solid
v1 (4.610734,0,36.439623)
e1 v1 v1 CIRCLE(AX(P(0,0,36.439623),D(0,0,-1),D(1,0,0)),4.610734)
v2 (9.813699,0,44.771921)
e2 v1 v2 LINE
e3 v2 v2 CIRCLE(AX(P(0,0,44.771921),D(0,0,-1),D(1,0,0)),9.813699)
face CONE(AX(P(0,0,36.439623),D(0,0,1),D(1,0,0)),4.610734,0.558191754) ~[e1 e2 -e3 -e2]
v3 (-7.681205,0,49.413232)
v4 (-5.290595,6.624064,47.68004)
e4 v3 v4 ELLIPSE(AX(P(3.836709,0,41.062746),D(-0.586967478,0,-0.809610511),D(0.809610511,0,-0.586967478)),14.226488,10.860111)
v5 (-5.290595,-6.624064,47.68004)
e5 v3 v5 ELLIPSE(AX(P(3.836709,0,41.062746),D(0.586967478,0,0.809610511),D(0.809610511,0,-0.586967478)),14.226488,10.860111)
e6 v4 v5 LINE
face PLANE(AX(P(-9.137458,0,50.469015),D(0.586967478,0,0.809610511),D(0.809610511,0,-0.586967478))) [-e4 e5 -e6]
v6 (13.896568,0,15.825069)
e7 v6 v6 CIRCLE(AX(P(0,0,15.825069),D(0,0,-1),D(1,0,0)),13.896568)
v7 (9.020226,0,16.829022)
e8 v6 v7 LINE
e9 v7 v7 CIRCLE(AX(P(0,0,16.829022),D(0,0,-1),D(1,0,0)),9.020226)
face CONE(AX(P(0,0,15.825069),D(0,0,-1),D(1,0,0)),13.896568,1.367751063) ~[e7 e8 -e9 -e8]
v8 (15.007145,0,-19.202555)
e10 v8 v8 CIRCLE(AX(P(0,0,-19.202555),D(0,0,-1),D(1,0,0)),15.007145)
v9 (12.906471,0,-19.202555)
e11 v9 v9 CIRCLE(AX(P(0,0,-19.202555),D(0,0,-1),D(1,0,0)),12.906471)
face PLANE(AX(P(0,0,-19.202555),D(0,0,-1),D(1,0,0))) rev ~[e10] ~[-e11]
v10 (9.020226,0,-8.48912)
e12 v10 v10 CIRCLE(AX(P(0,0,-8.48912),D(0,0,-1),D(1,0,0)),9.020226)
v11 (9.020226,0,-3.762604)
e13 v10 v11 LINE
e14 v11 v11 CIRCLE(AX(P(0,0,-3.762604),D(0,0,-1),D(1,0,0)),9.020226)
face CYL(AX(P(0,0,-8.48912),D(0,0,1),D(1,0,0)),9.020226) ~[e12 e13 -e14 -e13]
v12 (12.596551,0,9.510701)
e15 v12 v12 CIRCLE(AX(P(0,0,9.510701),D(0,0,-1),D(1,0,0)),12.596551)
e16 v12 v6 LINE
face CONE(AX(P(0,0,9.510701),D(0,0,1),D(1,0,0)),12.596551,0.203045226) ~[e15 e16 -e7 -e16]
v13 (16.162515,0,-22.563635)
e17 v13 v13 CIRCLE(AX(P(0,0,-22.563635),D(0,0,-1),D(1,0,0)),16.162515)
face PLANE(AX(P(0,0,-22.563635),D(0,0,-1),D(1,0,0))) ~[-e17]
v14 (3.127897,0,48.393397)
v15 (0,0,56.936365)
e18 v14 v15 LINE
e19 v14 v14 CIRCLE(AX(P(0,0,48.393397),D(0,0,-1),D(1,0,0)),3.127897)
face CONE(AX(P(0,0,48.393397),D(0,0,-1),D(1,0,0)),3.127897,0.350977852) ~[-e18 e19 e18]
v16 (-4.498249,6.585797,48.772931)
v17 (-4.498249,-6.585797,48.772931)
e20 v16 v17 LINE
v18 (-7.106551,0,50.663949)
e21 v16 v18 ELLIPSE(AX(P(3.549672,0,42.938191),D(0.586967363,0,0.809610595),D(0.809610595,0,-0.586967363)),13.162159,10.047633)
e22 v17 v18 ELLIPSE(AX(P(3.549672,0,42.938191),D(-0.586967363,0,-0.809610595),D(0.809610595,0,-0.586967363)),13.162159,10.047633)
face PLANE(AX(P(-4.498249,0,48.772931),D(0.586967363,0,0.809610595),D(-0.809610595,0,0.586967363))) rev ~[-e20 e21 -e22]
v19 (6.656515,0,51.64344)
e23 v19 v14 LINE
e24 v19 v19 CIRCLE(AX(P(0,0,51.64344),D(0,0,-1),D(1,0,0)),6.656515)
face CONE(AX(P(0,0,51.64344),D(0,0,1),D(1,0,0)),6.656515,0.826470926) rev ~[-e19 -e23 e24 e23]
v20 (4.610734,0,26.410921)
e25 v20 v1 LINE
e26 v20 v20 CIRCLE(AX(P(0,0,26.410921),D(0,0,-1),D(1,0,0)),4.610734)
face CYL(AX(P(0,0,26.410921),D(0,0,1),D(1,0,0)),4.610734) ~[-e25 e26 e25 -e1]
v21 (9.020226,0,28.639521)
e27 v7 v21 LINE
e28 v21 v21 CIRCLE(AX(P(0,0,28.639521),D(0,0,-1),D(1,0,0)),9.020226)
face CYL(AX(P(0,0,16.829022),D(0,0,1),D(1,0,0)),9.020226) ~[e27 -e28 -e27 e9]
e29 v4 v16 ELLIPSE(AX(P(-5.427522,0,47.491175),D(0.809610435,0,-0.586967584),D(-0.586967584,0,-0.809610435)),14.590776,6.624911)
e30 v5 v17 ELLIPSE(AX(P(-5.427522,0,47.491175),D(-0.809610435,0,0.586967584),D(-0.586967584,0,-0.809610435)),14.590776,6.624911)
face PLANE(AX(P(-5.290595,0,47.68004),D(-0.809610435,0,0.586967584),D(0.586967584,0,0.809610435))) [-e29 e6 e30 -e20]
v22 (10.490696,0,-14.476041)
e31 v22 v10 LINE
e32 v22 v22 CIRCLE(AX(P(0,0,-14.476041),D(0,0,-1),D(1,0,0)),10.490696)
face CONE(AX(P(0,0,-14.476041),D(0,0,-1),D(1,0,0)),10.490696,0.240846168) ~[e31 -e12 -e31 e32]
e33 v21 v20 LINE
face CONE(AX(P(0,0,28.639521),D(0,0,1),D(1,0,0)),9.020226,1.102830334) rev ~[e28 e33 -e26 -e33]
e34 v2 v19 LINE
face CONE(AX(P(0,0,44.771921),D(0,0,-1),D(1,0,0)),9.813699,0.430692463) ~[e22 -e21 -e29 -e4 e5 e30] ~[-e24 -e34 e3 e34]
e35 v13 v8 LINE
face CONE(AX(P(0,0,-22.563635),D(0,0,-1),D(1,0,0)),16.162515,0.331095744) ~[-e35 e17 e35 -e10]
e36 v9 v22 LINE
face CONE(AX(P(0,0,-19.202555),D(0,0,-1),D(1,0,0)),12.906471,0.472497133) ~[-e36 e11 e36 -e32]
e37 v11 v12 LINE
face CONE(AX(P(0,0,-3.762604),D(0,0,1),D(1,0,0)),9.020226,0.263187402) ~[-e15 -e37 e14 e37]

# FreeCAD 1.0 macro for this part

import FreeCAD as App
import Part
import Sketcher
from FreeCAD import Vector
Q = App.Units.Quantity

doc = App.newDocument("Part")
body = doc.addObject("PartDesign::Body", "Body")

sketch1 = body.newObject("Sketcher::SketchObject", "Sketch")
sketch1.AttachmentSupport = (doc.getObject("XZ_Plane"), [""])
sketch1.MapMode = "FlatFace"
sketch1.addGeometry(Part.LineSegment(Vector(0, -22.563635, 0), Vector(16.162515, -22.563635, 0)), False)
sketch1.addGeometry(Part.LineSegment(Vector(16.162515, -22.563635, 0), Vector(15.007145, -19.202555, 0)), False)
sketch1.addGeometry(Part.LineSegment(Vector(15.007145, -19.202555, 0), Vector(12.906471, -19.202555, 0)), False)
sketch1.addGeometry(Part.LineSegment(Vector(12.906471, -19.202555, 0), Vector(10.490696, -14.476041, 0)), False)
sketch1.addGeometry(Part.LineSegment(Vector(10.490696, -14.476041, 0), Vector(9.020226, -8.48912, 0)), False)
sketch1.addGeometry(Part.LineSegment(Vector(9.020226, -8.48912, 0), Vector(9.020226, -3.762604, 0)), False)
sketch1.addGeometry(Part.LineSegment(Vector(9.020226, -3.762604, 0), Vector(12.596551, 9.510701, 0)), False)
sketch1.addGeometry(Part.LineSegment(Vector(12.596551, 9.510701, 0), Vector(13.896568, 15.825069, 0)), False)
sketch1.addGeometry(Part.LineSegment(Vector(13.896568, 15.825069, 0), Vector(9.020226, 16.829022, 0)), False)
sketch1.addGeometry(Part.LineSegment(Vector(9.020226, 16.829022, 0), Vector(9.020226, 28.639521, 0)), False)
sketch1.addGeometry(Part.LineSegment(Vector(9.020226, 28.639521, 0), Vector(4.610734, 26.410921, 0)), False)
sketch1.addGeometry(Part.LineSegment(Vector(4.610734, 26.410921, 0), Vector(4.610734, 36.439623, 0)), False)
sketch1.addGeometry(Part.LineSegment(Vector(4.610734, 36.439623, 0), Vector(9.813699, 44.771921, 0)), False)
sketch1.addGeometry(Part.LineSegment(Vector(9.813699, 44.771921, 0), Vector(6.656515, 51.64344, 0)), False)
sketch1.addGeometry(Part.LineSegment(Vector(6.656515, 51.64344, 0), Vector(3.127897, 48.393397, 0)), False)
sketch1.addGeometry(Part.LineSegment(Vector(3.127897, 48.393397, 0), Vector(0, 56.936365, 0)), False)
sketch1.addGeometry(Part.LineSegment(Vector(0, 56.936365, 0), Vector(0, -22.563635, 0)), False)
sketch1.addConstraint(Sketcher.Constraint("Coincident", 0, 2, 1, 1))
sketch1.addConstraint(Sketcher.Constraint("Coincident", 1, 2, 2, 1))
sketch1.addConstraint(Sketcher.Constraint("Coincident", 2, 2, 3, 1))
sketch1.addConstraint(Sketcher.Constraint("Coincident", 3, 2, 4, 1))
sketch1.addConstraint(Sketcher.Constraint("Coincident", 4, 2, 5, 1))
sketch1.addConstraint(Sketcher.Constraint("Coincident", 5, 2, 6, 1))
sketch1.addConstraint(Sketcher.Constraint("Coincident", 6, 2, 7, 1))
sketch1.addConstraint(Sketcher.Constraint("Coincident", 7, 2, 8, 1))
sketch1.addConstraint(Sketcher.Constraint("Coincident", 8, 2, 9, 1))
sketch1.addConstraint(Sketcher.Constraint("Coincident", 9, 2, 10, 1))
sketch1.addConstraint(Sketcher.Constraint("Coincident", 10, 2, 11, 1))
sketch1.addConstraint(Sketcher.Constraint("Coincident", 11, 2, 12, 1))
sketch1.addConstraint(Sketcher.Constraint("Coincident", 12, 2, 13, 1))
sketch1.addConstraint(Sketcher.Constraint("Coincident", 13, 2, 14, 1))
sketch1.addConstraint(Sketcher.Constraint("Coincident", 14, 2, 15, 1))
sketch1.addConstraint(Sketcher.Constraint("Coincident", 15, 2, 16, 1))
sketch1.addConstraint(Sketcher.Constraint("Coincident", 16, 2, 0, 1))
sketch1.addConstraint(Sketcher.Constraint("Horizontal", 0))
sketch1.addConstraint(Sketcher.Constraint("Horizontal", 2))
sketch1.addConstraint(Sketcher.Constraint("Vertical", 5))
sketch1.addConstraint(Sketcher.Constraint("Vertical", 9))
sketch1.addConstraint(Sketcher.Constraint("Vertical", 11))
sketch1.addConstraint(Sketcher.Constraint("Vertical", 16))
sketch1.addConstraint(Sketcher.Constraint("PointOnObject", 15, 2, -2))
sketch1.addConstraint(Sketcher.Constraint("Perpendicular", 7, 8))
sketch1.addConstraint(Sketcher.Constraint("Vertical", 5, 2, 8, 2))
sketch1.addConstraint(Sketcher.Constraint("DistanceY", 16, 2, 16, 1, Q("79.5 mm")))
sketch1.addConstraint(Sketcher.Constraint("DistanceY", 9, 1, 9, 2, Q("11.810499 mm")))
sketch1.addConstraint(Sketcher.Constraint("DistanceY", 11, 1, 11, 2, Q("10.028702 mm")))
sketch1.addConstraint(Sketcher.Constraint("DistanceY", 10, 2, 12, 2, Q("18.361 mm")))
sketch1.addConstraint(Sketcher.Constraint("DistanceY", -1, 1, 6, 2, Q("9.510701 mm")))
sketch1.addConstraint(Sketcher.Constraint("DistanceX", -1, 1, 12, 2, Q("9.813699 mm")))
sketch1.addConstraint(Sketcher.Constraint("DistanceY", 10, 2, 9, 2, Q("2.2286 mm")))
sketch1.addConstraint(Sketcher.Constraint("DistanceX", 14, 2, 12, 2, Q("6.685802 mm")))
sketch1.addConstraint(Sketcher.Constraint("Distance", 4, Q("6.164861 mm")))
sketch1.addConstraint(Sketcher.Constraint("Distance", 12, Q("9.823341 mm")))
sketch1.addConstraint(Sketcher.Constraint("DistanceX", 0, 1, 0, 2, Q("16.162515 mm")))
sketch1.addConstraint(Sketcher.Constraint("DistanceX", 2, 2, 2, 1, Q("2.100674 mm")))
sketch1.addConstraint(Sketcher.Constraint("DistanceY", 5, 1, 5, 2, Q("4.726516 mm")))
sketch1.addConstraint(Sketcher.Constraint("DistanceX", -1, 1, 2, 2, Q("12.906471 mm")))
sketch1.addConstraint(Sketcher.Constraint("DistanceY", 3, 2, -1, 1, Q("14.476041 mm")))
sketch1.addConstraint(Sketcher.Constraint("DistanceY", 4, 2, -1, 1, Q("8.48912 mm")))
sketch1.addConstraint(Sketcher.Constraint("DistanceX", -1, 1, 6, 2, Q("12.596551 mm")))
sketch1.addConstraint(Sketcher.Constraint("DistanceY", -1, 1, 7, 2, Q("15.825069 mm")))
sketch1.addConstraint(Sketcher.Constraint("DistanceY", -1, 1, 8, 2, Q("16.829022 mm")))
sketch1.addConstraint(Sketcher.Constraint("DistanceY", -1, 1, 13, 2, Q("51.64344 mm")))
sketch1.addConstraint(Sketcher.Constraint("DistanceY", 0, 2, 1, 2, Q("3.36108 mm")))
sketch1.addConstraint(Sketcher.Constraint("DistanceX", 3, 2, 1, 2, Q("4.516449 mm")))
sketch1.addConstraint(Sketcher.Constraint("DistanceY", 2, 2, 5, 2, Q("15.439951 mm")))
sketch1.addConstraint(Sketcher.Constraint("DistanceX", 11, 2, 13, 2, Q("2.045781 mm")))
sketch1.addConstraint(Sketcher.Constraint("DistanceY", 14, 2, 15, 2, Q("8.542968 mm")))
revolution = body.newObject("PartDesign::Revolution", "Revolution")
revolution.Profile = sketch1
revolution.ReferenceAxis = (sketch1, ["V_Axis"])
revolution.Angle = 360

sketch2 = body.newObject("Sketcher::SketchObject", "Sketch001")
sketch2.AttachmentSupport = (doc.getObject("XZ_Plane"), [""])
sketch2.MapMode = "FlatFace"
sketch2.addGeometry(Part.LineSegment(Vector(-4.498249, 48.772931, 0), Vector(-8.376098, 51.58437, 0)), False)
sketch2.addGeometry(Part.LineSegment(Vector(-8.376098, 51.58437, 0), Vector(-9.137458, 50.469015, 0)), False)
sketch2.addGeometry(Part.LineSegment(Vector(-9.137458, 50.469015, 0), Vector(-5.290595, 47.68004, 0)), False)
sketch2.addGeometry(Part.LineSegment(Vector(-5.290595, 47.68004, 0), Vector(-4.498249, 48.772931, 0)), False)
sketch2.addConstraint(Sketcher.Constraint("Coincident", 0, 2, 1, 1))
sketch2.addConstraint(Sketcher.Constraint("Coincident", 1, 2, 2, 1))
sketch2.addConstraint(Sketcher.Constraint("Coincident", 2, 2, 3, 1))
sketch2.addConstraint(Sketcher.Constraint("Coincident", 3, 2, 0, 1))
sketch2.addConstraint(Sketcher.Constraint("Parallel", 0, 2))
sketch2.addConstraint(Sketcher.Constraint("Perpendicular", 2, 3))
sketch2.addConstraint(Sketcher.Constraint("Distance", 2, Q("4.751498 mm")))
sketch2.addConstraint(Sketcher.Constraint("DistanceX", 0, 2, -1, 1, Q("8.376098 mm")))
sketch2.addConstraint(Sketcher.Constraint("Distance", 0, Q("4.789771 mm")))
sketch2.addConstraint(Sketcher.Constraint("Distance", 1, Q("1.350439 mm")))
sketch2.addConstraint(Sketcher.Constraint("DistanceY", -1, 1, 0, 2, Q("51.58437 mm")))
sketch2.addConstraint(Sketcher.Constraint("DistanceY", -1, 1, 2, 2, Q("47.68004 mm")))
pocket1 = body.newObject("PartDesign::Pocket", "Pocket")
pocket1.Profile = sketch2
pocket1.Length = 25

sketch3 = body.newObject("Sketcher::SketchObject", "Sketch002")
sketch3.AttachmentSupport = (doc.getObject("XZ_Plane"), [""])
sketch3.MapMode = "FlatFace"
sketch3.addGeometry(Part.LineSegment(Vector(-4.498249, 48.772931, 0), Vector(-8.376098, 51.58437, 0)), False)
sketch3.addGeometry(Part.LineSegment(Vector(-8.376098, 51.58437, 0), Vector(-9.137458, 50.469015, 0)), False)
sketch3.addGeometry(Part.LineSegment(Vector(-9.137458, 50.469015, 0), Vector(-5.290595, 47.68004, 0)), False)
sketch3.addGeometry(Part.LineSegment(Vector(-5.290595, 47.68004, 0), Vector(-4.498249, 48.772931, 0)), False)
sketch3.addConstraint(Sketcher.Constraint("Coincident", 0, 2, 1, 1))
sketch3.addConstraint(Sketcher.Constraint("Coincident", 1, 2, 2, 1))
sketch3.addConstraint(Sketcher.Constraint("Coincident", 2, 2, 3, 1))
sketch3.addConstraint(Sketcher.Constraint("Coincident", 3, 2, 0, 1))
sketch3.addConstraint(Sketcher.Constraint("Parallel", 0, 2))
sketch3.addConstraint(Sketcher.Constraint("Perpendicular", 2, 3))
sketch3.addConstraint(Sketcher.Constraint("Distance", 2, Q("4.751498 mm")))
sketch3.addConstraint(Sketcher.Constraint("DistanceX", 0, 2, -1, 1, Q("8.376098 mm")))
sketch3.addConstraint(Sketcher.Constraint("Distance", 0, Q("4.789771 mm")))
sketch3.addConstraint(Sketcher.Constraint("Distance", 1, Q("1.350439 mm")))
sketch3.addConstraint(Sketcher.Constraint("DistanceY", -1, 1, 0, 2, Q("51.58437 mm")))
sketch3.addConstraint(Sketcher.Constraint("DistanceY", -1, 1, 2, 2, Q("47.68004 mm")))
pocket2 = body.newObject("PartDesign::Pocket", "Pocket001")
pocket2.Profile = sketch3
pocket2.Length = 25
pocket2.Reversed = True

doc.recompute()
